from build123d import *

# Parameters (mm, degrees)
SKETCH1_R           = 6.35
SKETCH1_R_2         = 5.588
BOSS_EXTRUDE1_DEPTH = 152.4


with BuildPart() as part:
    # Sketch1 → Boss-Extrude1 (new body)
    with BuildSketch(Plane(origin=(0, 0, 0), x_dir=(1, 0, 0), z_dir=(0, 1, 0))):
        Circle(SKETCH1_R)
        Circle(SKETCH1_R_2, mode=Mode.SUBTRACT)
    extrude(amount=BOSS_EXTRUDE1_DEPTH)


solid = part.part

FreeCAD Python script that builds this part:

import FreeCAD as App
import Part
import Sketcher
Q = App.Units.Quantity

doc = App.newDocument("Part")
body = doc.addObject("PartDesign::Body", "Body")

# Sketch on XZ plane
sketch1 = body.newObject("Sketcher::SketchObject", "Sketch")
sketch1.AttachmentSupport = (doc.getObject("XZ_Plane"), [""])
sketch1.MapMode = "FlatFace"
sketch1.addGeometry(Part.Circle(App.Vector(0, 0, 0), App.Vector(0, 0, 1), 6), False)
sketch1.addGeometry(Part.Circle(App.Vector(0, 0, 0), App.Vector(0, 0, 1), 6), False)
sketch1.addConstraint(Sketcher.Constraint("Coincident", 0, 3, -1, 1))
sketch1.addConstraint(Sketcher.Constraint("Coincident", 1, 3, -1, 1))
sketch1.addConstraint(Sketcher.Constraint("Diameter", 0, Q("0.5 in")))
sketch1.addConstraint(Sketcher.Constraint("Diameter", 1, Q("0.44 in")))
pad1 = body.newObject("PartDesign::Pad", "Pad")
pad1.Profile = sketch1
pad1.Length = Q("6 in")
pad1.Reversed = True

doc.recompute()
